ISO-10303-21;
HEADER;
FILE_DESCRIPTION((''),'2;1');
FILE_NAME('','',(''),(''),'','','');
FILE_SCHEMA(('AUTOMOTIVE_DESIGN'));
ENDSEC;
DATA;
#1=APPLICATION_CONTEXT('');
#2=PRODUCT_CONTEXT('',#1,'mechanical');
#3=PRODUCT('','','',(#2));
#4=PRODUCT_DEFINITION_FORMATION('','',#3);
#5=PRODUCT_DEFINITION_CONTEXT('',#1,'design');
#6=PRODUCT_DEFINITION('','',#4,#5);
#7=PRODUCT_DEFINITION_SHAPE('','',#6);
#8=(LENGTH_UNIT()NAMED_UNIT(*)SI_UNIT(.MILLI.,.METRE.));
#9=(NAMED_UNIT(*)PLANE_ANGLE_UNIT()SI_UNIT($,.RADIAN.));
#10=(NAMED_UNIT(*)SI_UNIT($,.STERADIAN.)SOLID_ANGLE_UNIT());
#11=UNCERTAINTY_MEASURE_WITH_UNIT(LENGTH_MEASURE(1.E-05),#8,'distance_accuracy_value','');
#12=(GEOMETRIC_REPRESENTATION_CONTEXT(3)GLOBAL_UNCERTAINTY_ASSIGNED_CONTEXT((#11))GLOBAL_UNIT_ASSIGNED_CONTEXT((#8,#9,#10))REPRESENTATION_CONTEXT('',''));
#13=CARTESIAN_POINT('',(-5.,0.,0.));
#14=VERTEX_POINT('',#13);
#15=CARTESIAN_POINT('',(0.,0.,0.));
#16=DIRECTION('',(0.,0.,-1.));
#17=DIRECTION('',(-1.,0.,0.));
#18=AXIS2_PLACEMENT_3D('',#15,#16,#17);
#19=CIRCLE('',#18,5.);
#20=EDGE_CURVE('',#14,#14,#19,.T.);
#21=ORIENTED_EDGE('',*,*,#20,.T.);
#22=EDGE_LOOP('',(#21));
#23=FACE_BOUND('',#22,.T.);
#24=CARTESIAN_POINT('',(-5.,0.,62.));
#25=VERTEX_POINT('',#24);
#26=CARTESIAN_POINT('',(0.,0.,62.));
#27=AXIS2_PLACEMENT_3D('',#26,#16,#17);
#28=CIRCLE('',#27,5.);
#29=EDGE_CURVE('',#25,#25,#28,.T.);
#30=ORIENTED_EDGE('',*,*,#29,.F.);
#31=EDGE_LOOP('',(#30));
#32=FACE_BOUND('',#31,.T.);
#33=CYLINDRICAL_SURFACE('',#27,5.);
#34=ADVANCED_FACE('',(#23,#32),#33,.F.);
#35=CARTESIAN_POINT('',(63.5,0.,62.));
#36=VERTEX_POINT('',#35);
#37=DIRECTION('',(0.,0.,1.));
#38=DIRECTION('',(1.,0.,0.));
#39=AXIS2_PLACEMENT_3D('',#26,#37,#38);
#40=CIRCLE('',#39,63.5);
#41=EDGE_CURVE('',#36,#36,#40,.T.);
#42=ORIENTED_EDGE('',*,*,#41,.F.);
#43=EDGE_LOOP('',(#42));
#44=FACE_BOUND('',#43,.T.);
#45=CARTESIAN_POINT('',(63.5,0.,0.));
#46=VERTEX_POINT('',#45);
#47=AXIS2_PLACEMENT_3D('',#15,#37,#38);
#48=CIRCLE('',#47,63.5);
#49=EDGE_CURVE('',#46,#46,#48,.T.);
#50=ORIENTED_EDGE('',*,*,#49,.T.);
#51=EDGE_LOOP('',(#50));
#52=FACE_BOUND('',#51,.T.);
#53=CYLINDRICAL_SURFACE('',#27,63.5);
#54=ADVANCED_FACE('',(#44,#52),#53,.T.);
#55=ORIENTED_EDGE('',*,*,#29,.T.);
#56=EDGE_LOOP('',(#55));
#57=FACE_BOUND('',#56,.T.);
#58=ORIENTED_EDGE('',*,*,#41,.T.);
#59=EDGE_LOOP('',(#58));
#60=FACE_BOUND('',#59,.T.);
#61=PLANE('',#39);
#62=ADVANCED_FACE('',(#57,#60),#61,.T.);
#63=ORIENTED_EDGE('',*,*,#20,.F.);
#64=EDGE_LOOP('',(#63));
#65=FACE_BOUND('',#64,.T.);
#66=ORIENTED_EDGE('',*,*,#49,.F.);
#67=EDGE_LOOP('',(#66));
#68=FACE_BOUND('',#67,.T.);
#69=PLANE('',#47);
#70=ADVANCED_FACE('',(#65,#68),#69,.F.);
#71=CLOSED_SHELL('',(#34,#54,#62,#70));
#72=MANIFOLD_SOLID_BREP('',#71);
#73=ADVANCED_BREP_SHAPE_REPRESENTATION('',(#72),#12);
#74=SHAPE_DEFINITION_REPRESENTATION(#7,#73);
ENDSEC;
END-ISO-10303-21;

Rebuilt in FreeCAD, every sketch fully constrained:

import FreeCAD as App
import Part
import Sketcher

doc = App.newDocument("Part")
body = doc.addObject("PartDesign::Body", "Body")

sketch1 = body.newObject("Sketcher::SketchObject", "Sketch")
sketch1.AttachmentSupport = (doc.getObject("XY_Plane"), [""])
sketch1.MapMode = "FlatFace"
sketch1.addGeometry(Part.Circle(App.Vector(0, 0, 0), App.Vector(0, 0, 1), 64), False)
sketch1.addConstraint([
    Sketcher.Constraint("Coincident", 0, 3, -1, 1),
    Sketcher.Constraint("Diameter", 0, 127.0),
])
pad1 = body.newObject("PartDesign::Pad", "Pad")
pad1.Profile = sketch1
pad1.Length = 62

sketch2 = body.newObject("Sketcher::SketchObject", "Sketch001")
sketch2.AttachmentSupport = (doc.getObject("XY_Plane"), [""])
sketch2.MapMode = "FlatFace"
sketch2.addGeometry(Part.Circle(App.Vector(0, 0, 0), App.Vector(0, 0, 1), 5), False)
sketch2.addConstraint([
    Sketcher.Constraint("Coincident", 0, 3, -1, 1),
    Sketcher.Constraint("Diameter", 0, 10.0),
])
pocket1 = body.newObject("PartDesign::Pocket", "Pocket")
pocket1.Profile = sketch2
pocket1.Type = "ThroughAll"
pocket1.Reversed = True

doc.recompute()
